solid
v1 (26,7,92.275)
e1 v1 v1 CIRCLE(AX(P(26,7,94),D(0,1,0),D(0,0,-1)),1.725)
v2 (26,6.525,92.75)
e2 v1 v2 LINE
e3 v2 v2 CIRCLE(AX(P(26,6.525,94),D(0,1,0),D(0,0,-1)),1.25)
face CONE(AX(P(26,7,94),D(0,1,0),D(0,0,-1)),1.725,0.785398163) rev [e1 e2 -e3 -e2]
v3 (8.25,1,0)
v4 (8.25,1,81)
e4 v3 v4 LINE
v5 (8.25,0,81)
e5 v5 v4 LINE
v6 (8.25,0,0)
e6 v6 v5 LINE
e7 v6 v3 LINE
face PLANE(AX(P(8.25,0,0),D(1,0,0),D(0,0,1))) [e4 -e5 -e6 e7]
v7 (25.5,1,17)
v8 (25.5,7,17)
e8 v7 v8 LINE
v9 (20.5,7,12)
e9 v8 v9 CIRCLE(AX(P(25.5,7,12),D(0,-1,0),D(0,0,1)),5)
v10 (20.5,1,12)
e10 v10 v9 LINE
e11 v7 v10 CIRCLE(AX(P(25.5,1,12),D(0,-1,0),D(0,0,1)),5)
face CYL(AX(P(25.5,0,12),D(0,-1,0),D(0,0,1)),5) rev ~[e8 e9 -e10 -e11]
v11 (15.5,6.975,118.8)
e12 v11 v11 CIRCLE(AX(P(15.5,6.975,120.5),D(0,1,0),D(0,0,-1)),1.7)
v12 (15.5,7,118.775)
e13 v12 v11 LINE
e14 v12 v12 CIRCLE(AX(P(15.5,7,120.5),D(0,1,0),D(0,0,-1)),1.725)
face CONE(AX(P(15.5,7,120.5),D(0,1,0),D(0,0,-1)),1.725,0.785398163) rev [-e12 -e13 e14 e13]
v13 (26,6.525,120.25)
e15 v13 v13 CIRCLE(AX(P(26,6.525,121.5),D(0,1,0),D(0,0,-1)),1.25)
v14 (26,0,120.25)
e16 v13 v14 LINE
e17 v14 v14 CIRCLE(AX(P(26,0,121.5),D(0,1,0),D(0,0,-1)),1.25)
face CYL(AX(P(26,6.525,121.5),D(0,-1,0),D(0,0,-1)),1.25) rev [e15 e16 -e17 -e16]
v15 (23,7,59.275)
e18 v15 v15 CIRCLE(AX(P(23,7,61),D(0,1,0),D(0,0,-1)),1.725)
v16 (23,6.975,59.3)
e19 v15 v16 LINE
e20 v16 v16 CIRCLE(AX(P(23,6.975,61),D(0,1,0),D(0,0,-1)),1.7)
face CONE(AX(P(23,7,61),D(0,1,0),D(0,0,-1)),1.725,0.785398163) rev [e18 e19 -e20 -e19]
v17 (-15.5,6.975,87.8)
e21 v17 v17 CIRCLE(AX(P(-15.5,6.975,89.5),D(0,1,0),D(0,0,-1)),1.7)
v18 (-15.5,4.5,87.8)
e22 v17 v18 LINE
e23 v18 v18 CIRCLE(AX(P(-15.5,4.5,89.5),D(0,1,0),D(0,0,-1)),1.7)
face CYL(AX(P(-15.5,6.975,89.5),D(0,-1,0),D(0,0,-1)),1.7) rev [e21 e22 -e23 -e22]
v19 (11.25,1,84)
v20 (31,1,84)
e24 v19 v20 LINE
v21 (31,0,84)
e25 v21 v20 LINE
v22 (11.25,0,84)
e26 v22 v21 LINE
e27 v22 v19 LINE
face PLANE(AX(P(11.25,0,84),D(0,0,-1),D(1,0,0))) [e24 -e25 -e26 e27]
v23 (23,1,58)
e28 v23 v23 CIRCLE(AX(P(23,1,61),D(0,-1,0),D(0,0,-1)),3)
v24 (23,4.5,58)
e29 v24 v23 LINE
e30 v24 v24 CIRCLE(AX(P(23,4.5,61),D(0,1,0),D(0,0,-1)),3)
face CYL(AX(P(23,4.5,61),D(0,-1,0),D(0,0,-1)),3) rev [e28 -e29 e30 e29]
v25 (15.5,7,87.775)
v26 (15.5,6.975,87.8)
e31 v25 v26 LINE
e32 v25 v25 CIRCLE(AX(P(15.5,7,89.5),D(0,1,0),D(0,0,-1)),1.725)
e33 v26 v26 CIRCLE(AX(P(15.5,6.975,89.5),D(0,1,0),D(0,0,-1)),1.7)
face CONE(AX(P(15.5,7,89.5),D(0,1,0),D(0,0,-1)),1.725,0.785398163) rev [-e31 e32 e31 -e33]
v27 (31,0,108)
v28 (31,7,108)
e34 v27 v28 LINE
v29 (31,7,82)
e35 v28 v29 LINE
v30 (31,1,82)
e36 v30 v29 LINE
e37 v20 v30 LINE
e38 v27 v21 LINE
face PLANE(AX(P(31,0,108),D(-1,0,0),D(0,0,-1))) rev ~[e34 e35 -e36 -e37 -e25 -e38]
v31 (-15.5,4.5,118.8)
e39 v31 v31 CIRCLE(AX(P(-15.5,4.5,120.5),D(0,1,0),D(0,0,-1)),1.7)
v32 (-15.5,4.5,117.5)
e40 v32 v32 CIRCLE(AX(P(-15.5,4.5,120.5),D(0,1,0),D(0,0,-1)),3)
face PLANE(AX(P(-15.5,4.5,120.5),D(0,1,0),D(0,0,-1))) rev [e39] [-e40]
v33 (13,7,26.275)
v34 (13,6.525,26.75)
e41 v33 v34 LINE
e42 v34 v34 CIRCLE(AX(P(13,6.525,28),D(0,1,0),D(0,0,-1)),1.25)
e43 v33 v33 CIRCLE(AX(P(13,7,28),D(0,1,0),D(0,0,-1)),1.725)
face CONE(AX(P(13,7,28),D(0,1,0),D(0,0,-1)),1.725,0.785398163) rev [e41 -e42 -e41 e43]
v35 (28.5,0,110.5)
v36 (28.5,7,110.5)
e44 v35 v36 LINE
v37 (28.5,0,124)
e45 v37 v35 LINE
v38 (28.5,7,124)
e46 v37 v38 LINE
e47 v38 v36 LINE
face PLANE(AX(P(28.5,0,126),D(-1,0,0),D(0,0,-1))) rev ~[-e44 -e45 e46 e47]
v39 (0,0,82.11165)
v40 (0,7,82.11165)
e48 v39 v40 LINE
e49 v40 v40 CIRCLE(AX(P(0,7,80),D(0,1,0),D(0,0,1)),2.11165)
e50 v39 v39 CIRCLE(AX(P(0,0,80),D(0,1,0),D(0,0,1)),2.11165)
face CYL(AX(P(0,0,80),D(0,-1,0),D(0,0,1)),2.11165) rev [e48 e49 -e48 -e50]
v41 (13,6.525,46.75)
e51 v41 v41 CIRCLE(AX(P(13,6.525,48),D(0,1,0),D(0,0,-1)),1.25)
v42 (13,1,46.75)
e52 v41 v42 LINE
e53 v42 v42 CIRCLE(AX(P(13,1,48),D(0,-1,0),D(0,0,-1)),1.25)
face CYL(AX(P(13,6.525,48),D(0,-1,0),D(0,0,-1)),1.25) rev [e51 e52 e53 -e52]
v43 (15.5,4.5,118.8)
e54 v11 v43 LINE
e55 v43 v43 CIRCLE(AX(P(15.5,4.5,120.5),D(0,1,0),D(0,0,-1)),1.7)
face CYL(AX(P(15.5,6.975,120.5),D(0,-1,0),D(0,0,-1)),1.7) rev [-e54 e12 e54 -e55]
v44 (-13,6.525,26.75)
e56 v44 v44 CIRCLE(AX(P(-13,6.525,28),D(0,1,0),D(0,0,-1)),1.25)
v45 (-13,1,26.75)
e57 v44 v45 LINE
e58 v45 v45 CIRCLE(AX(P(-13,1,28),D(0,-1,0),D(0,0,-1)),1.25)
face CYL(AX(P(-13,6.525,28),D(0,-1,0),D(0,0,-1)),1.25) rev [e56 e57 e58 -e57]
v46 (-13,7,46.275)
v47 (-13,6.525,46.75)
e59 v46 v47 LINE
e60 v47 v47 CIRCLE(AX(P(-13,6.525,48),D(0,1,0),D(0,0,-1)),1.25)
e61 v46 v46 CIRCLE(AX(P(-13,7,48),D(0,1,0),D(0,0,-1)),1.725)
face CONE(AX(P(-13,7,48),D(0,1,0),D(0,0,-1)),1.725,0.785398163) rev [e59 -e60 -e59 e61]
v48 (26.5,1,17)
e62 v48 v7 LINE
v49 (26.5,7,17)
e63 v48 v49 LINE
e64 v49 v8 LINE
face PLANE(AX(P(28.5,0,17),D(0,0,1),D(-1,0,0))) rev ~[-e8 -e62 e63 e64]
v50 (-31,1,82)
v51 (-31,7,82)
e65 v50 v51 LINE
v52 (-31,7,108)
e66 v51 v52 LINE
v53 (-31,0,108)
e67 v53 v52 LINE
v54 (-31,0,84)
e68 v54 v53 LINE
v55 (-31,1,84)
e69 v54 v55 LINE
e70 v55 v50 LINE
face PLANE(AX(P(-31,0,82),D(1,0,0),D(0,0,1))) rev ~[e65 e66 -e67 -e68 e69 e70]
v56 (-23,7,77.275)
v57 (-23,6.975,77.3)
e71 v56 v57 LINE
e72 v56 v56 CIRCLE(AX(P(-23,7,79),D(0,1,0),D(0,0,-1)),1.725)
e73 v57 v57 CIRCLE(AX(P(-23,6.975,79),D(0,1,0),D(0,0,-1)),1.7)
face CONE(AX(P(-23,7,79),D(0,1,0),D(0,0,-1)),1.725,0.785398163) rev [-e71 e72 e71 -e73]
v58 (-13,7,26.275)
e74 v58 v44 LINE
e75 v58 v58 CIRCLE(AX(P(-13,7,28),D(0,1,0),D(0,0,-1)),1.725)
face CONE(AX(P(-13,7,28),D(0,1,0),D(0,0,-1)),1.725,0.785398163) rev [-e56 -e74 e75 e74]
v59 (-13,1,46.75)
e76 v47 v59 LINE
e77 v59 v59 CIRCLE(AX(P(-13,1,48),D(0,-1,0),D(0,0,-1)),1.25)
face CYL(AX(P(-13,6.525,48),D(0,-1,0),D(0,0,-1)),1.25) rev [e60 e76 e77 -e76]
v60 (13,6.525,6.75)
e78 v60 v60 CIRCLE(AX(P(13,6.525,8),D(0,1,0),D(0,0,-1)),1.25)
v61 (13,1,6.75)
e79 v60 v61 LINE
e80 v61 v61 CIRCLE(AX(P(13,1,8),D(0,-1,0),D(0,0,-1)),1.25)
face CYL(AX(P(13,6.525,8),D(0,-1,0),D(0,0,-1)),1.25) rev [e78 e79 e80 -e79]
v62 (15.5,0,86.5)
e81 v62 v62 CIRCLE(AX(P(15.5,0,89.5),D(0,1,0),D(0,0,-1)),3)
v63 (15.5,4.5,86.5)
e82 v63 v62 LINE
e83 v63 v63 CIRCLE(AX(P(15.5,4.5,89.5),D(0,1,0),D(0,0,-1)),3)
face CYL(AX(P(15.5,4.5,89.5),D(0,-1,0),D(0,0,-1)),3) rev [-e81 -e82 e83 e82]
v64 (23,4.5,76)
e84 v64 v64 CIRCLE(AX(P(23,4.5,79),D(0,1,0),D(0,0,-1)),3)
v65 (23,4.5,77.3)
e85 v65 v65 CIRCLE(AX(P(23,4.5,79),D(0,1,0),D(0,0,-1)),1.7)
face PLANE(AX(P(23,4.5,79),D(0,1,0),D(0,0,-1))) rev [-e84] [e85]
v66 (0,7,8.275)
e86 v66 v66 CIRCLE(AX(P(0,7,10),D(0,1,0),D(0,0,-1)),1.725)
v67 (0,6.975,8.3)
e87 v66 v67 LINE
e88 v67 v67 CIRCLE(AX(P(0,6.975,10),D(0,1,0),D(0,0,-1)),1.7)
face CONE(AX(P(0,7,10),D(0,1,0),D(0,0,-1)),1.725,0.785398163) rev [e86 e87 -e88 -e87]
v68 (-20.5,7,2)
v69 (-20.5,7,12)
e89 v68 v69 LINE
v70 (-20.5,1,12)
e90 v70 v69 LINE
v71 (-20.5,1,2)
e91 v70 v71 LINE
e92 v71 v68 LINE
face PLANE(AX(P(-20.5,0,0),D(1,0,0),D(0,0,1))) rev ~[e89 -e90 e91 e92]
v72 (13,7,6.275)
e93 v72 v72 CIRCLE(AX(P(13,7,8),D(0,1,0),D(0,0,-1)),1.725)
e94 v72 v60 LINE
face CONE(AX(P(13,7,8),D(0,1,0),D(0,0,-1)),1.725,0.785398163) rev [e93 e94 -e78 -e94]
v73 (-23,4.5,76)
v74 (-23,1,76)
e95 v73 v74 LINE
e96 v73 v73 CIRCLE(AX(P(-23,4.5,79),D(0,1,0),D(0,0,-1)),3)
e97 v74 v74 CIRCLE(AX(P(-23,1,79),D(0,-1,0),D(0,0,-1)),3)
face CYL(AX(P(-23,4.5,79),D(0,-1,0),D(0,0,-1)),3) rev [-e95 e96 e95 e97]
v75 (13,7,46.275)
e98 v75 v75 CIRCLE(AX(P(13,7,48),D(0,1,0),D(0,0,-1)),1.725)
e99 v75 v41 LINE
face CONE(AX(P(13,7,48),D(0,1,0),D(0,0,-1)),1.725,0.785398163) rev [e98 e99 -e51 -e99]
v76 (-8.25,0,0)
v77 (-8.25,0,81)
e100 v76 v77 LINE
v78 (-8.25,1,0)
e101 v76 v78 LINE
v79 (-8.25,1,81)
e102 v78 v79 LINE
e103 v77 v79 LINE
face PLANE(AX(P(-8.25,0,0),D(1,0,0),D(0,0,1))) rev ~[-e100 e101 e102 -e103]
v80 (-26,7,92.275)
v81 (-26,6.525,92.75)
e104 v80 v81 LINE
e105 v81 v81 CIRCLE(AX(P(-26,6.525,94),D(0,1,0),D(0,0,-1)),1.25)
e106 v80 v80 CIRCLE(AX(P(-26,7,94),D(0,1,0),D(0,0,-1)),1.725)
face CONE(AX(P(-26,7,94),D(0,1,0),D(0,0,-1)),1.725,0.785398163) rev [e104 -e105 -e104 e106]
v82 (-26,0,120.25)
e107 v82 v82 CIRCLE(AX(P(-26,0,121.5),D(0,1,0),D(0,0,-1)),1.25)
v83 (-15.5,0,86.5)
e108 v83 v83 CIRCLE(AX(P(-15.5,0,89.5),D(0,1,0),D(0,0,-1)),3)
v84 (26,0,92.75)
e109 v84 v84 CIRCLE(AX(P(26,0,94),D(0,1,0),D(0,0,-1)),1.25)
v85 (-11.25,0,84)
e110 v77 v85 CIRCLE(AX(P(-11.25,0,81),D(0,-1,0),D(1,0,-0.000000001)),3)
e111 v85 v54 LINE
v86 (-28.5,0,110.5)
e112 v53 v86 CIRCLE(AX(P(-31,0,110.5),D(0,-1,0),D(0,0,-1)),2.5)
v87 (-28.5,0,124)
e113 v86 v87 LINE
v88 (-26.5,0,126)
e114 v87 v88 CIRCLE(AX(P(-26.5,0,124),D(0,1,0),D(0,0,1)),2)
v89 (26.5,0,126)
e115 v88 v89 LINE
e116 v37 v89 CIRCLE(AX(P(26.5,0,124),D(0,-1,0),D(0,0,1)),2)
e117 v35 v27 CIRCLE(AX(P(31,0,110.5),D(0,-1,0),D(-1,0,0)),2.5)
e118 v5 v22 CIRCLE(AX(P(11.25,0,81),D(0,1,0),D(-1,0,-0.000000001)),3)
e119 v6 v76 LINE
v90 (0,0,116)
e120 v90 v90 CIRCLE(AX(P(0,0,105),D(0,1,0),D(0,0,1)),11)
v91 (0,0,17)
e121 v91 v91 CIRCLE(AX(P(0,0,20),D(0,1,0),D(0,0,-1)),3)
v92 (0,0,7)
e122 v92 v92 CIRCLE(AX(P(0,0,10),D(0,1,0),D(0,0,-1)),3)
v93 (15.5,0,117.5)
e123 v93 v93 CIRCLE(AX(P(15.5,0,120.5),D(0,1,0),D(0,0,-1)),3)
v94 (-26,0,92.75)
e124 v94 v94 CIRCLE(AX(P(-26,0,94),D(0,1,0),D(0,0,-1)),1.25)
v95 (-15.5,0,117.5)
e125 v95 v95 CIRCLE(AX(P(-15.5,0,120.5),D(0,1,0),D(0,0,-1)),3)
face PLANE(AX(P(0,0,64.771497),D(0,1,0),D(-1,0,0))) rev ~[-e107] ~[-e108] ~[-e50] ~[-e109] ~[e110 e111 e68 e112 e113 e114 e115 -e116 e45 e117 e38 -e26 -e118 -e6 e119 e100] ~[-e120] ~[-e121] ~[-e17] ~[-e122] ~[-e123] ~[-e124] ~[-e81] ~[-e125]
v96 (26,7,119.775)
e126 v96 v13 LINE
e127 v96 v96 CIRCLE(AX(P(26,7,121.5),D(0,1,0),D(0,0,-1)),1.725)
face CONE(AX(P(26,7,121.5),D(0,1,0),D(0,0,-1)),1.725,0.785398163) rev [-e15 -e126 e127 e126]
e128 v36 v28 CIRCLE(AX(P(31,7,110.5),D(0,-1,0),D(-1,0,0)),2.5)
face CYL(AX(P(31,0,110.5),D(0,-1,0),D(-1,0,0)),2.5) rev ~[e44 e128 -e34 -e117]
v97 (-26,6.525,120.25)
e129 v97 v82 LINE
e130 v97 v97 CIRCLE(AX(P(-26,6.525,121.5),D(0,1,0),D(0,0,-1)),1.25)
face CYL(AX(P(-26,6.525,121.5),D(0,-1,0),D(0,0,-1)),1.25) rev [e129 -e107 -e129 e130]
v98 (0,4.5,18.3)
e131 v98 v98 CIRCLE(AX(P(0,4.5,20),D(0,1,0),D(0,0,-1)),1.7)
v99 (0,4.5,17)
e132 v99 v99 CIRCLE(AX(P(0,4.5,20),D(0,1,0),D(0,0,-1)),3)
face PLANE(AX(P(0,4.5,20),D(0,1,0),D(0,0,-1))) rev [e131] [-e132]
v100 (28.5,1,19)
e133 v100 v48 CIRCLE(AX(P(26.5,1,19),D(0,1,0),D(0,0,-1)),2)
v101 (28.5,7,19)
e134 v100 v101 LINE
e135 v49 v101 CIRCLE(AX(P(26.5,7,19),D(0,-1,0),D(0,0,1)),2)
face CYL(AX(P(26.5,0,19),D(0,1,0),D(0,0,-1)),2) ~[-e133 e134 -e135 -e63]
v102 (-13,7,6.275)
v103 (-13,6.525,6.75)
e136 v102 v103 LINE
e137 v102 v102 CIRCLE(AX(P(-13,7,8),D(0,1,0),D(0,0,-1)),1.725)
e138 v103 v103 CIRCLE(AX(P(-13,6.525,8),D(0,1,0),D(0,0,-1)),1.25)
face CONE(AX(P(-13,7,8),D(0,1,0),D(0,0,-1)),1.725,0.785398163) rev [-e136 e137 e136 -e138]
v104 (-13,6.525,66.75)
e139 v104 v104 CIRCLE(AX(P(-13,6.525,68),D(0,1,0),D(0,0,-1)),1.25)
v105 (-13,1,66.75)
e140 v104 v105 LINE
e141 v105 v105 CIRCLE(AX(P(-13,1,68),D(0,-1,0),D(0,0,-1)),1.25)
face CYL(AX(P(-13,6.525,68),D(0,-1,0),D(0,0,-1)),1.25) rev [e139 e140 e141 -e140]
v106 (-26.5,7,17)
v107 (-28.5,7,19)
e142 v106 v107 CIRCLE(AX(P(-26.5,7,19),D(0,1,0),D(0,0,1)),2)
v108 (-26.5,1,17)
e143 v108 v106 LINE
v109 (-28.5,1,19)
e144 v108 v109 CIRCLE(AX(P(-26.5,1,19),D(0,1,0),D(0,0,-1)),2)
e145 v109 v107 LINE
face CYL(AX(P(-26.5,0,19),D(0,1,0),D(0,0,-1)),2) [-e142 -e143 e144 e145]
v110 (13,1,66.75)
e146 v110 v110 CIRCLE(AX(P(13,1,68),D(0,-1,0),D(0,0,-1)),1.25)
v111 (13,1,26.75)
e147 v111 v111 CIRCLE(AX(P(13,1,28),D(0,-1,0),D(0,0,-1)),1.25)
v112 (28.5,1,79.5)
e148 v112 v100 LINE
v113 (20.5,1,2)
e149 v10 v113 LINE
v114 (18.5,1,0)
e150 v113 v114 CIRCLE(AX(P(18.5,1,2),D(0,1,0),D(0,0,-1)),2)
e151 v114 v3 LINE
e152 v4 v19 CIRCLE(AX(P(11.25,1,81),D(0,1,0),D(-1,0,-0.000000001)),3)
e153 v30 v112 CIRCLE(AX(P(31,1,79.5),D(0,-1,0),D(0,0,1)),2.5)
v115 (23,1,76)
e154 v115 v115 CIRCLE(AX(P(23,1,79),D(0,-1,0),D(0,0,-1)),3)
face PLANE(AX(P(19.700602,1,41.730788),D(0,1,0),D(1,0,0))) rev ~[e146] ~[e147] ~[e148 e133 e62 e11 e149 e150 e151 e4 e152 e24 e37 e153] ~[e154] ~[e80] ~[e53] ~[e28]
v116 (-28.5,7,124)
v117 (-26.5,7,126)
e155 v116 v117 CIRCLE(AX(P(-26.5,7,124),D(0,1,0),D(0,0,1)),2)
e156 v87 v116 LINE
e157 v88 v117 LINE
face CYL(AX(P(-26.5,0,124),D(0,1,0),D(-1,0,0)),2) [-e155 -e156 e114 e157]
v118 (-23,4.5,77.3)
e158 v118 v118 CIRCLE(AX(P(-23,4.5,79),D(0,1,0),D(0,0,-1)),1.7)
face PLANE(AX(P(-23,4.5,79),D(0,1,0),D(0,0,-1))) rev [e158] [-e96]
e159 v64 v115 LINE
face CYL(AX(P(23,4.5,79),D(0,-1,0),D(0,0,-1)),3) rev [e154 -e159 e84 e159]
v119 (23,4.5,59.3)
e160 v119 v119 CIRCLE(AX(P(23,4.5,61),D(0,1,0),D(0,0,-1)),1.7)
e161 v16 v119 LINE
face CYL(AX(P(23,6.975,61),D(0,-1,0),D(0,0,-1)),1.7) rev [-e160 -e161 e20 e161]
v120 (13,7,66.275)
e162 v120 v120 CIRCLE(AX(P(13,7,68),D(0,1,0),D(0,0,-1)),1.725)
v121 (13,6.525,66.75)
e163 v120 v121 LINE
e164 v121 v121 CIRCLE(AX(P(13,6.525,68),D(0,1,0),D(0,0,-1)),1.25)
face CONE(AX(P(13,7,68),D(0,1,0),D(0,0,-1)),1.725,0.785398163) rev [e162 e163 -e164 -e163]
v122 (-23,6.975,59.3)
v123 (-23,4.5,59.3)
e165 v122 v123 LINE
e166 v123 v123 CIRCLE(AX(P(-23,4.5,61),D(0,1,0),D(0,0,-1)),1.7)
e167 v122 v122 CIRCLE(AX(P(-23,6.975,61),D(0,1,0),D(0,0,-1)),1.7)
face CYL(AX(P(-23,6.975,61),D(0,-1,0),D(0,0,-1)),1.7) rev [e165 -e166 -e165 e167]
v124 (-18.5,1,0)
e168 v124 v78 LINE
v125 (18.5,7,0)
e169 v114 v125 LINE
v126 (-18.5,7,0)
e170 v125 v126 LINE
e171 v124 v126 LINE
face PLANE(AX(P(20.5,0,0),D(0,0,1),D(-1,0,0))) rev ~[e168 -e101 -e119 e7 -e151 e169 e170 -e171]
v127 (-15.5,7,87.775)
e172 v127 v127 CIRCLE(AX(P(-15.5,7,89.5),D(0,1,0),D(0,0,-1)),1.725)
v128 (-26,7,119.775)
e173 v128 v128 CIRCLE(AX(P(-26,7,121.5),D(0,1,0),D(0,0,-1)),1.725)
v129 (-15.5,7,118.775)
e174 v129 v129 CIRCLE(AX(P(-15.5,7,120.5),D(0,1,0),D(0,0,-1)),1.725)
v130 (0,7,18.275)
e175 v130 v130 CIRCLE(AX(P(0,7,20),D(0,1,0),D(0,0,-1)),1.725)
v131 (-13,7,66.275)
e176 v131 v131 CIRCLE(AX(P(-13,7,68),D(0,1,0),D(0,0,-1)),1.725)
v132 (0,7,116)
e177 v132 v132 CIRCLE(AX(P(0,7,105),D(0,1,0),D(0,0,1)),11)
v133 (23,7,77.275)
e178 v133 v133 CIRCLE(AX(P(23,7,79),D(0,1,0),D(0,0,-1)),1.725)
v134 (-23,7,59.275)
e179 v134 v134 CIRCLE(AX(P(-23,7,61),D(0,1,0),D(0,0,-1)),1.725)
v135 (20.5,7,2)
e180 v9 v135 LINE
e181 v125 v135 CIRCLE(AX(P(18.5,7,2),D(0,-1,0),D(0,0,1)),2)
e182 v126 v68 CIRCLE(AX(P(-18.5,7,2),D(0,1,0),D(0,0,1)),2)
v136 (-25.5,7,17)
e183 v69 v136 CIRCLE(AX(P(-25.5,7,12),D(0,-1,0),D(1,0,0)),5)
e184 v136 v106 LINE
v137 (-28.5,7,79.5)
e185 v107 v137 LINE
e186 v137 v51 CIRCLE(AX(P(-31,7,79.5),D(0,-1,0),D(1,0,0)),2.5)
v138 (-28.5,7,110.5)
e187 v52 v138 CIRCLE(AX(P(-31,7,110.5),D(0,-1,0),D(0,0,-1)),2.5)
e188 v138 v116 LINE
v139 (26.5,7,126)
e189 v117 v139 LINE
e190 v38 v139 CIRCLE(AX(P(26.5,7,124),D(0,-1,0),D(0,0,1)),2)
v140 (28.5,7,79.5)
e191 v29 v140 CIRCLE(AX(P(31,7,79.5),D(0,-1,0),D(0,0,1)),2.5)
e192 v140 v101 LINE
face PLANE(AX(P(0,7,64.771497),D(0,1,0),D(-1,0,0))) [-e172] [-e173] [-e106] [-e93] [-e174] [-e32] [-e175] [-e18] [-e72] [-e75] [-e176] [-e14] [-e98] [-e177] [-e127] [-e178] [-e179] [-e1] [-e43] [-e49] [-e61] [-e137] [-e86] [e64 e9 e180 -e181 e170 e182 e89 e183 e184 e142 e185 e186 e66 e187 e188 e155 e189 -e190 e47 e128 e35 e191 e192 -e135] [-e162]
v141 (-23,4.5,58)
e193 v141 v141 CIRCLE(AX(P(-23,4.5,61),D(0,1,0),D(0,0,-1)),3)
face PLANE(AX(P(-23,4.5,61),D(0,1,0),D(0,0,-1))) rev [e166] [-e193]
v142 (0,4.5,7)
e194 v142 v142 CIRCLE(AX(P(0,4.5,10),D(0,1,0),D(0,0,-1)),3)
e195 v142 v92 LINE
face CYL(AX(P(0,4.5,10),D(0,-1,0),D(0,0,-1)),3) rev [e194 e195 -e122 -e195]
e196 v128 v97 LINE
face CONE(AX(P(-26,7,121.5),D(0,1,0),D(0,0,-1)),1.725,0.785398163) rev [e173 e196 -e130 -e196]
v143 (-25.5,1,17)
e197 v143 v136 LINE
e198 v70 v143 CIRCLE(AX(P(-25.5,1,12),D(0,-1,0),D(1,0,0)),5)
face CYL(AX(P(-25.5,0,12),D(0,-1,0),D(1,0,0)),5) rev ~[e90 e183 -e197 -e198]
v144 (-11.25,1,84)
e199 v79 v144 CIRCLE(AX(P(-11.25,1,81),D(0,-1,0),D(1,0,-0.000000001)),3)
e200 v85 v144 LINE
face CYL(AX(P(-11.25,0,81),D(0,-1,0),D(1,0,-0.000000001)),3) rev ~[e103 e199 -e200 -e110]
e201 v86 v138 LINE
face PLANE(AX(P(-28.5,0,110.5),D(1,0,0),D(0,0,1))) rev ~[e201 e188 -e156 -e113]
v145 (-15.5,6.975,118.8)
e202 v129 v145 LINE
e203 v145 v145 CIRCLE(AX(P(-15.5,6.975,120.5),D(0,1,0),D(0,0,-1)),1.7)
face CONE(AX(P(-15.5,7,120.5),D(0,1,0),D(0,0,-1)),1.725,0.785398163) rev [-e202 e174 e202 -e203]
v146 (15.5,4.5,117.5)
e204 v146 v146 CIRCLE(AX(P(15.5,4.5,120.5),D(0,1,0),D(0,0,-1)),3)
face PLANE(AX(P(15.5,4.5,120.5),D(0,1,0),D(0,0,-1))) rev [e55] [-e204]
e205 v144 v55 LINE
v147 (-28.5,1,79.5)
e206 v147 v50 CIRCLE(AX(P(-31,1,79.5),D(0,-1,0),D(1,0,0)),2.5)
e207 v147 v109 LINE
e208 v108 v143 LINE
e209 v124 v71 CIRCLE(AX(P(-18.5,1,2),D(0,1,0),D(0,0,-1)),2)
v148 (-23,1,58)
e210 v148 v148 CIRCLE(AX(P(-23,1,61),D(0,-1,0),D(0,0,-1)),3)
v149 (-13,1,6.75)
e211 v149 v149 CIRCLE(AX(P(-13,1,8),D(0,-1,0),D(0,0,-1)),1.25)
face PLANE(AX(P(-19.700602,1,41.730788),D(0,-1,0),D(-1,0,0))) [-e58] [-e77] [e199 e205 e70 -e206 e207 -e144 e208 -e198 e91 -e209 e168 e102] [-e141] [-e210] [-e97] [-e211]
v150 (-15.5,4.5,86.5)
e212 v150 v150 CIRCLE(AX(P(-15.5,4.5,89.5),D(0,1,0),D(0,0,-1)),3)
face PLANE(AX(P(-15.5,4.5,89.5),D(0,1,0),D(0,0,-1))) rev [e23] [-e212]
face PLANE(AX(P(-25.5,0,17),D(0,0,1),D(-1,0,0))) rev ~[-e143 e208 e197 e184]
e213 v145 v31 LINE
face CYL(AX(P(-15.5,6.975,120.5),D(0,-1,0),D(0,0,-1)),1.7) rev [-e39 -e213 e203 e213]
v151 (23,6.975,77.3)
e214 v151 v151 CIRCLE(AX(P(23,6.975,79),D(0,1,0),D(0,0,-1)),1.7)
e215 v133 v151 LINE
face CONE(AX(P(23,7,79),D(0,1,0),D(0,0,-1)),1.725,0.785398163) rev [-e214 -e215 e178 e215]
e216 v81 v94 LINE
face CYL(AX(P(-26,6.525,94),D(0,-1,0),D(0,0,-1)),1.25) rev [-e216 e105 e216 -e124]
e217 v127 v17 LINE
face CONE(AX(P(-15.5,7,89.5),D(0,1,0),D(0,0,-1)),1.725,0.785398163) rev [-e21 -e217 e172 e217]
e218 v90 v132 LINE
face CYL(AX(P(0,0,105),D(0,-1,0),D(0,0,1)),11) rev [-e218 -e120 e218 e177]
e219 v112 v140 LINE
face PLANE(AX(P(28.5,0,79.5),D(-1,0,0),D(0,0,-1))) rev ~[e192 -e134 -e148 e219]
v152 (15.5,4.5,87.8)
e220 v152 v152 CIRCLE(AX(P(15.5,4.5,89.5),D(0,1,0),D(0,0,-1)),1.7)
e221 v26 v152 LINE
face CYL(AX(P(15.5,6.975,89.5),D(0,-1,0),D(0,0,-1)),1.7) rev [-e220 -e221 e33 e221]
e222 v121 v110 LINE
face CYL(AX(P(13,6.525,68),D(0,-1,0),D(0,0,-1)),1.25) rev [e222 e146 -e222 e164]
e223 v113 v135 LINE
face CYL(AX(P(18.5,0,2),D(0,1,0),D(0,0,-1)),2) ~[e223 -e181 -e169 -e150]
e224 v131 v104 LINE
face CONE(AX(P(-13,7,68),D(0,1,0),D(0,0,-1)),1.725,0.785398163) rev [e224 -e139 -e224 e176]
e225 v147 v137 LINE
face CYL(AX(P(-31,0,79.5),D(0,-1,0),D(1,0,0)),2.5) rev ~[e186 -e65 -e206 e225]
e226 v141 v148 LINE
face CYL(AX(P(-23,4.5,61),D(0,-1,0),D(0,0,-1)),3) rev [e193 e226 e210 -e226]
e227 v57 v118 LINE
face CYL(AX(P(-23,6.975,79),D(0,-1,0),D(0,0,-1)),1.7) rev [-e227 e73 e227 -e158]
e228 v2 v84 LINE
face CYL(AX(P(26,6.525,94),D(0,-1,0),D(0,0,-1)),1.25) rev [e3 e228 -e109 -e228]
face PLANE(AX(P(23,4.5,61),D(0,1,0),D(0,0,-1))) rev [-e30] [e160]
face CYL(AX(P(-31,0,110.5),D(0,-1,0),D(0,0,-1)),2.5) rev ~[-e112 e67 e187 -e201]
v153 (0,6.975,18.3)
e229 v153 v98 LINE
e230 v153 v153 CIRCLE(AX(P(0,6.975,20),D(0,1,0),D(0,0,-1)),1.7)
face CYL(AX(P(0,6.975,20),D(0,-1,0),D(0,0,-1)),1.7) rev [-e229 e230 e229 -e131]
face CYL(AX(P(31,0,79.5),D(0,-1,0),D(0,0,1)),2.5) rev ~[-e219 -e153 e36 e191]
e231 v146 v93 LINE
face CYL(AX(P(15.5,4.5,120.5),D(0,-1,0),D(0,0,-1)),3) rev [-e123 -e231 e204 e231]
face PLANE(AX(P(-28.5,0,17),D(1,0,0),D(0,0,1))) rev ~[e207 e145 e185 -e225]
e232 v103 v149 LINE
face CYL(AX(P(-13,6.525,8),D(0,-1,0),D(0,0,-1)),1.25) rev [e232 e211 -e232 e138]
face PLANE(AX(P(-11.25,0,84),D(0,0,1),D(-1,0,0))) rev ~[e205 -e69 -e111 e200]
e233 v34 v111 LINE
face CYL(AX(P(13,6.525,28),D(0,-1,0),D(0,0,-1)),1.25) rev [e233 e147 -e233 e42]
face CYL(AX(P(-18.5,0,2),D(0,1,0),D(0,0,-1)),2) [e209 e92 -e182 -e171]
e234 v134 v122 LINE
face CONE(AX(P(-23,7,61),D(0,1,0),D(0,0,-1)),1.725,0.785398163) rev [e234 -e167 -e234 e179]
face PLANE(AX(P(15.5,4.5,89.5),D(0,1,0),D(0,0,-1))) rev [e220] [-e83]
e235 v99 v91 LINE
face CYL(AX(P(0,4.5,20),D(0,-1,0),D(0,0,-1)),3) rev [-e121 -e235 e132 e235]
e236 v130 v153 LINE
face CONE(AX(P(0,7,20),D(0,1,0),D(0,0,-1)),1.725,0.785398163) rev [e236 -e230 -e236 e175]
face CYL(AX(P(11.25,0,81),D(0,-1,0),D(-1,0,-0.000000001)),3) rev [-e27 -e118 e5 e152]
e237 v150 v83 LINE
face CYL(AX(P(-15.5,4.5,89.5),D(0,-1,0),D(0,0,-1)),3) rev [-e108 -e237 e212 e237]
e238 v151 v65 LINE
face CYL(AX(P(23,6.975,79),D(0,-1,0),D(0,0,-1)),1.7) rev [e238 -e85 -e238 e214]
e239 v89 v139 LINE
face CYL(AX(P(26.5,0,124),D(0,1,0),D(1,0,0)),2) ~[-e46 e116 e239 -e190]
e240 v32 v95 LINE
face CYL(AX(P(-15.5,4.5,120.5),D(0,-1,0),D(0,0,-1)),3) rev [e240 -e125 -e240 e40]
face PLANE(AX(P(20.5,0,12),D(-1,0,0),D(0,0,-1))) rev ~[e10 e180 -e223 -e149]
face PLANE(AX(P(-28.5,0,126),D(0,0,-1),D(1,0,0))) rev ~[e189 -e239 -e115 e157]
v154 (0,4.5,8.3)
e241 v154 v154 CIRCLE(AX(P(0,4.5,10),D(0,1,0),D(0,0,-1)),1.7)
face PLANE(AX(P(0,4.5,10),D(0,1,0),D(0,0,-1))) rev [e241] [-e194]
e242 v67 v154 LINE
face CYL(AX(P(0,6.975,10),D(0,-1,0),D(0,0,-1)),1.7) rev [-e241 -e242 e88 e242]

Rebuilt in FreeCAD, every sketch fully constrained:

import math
import FreeCAD as App
import Part
import Sketcher
Q = App.Units.Quantity


def edges_at(feature, points):
    """Names of the edges that pass closest to the given points."""
    edges = feature.Shape.Edges
    near = lambda p: min(range(len(edges)), key=lambda i: edges[i].distToShape(Part.Vertex(*p))[0])
    return sorted({f"Edge{near(p) + 1}" for p in points})


def add_polygon(sketch, points):
    """Adds a closed chain of lines whose ends are joined by coincident constraints."""
    first, n = sketch.GeometryCount, len(points)
    for a, b in zip(points, points[1:] + points[:1]):
        sketch.addGeometry(Part.LineSegment(App.Vector(*a, 0), App.Vector(*b, 0)), False)
    for i in range(n):
        sketch.addConstraint(Sketcher.Constraint("Coincident", first + i, 2, first + (i + 1) % n, 1))

doc = App.newDocument("Part")
params = doc.addObject("Spreadsheet::Sheet", "Params")
for row, (alias, value) in enumerate([
    ("sketch1_diameter", "22 mm"),
    ("sketch1_radius", "5 mm"),
    ("sketch1_radius2", "2.5 mm"),
    ("sketch1_width", "41 mm"),
    ("sketch1_width2", "3 mm"),
    ("pad1_length", "7 mm"),
    ("fillet_radius", "2 mm"),
    ("sketch2_width", "7 mm"),
    ("sketch2_height", "1.25 mm"),
    ("groove_angle", "360 deg"),
    ("linearpattern_pitch", "27.5 mm"),
    ("linearpattern2_pitch", "58.82389 mm"),
    ("linearpattern3_pitch", "66.206118 mm"),
    ("linearpattern4_pitch", "83.206069 mm"),
    ("linearpattern5_pitch", "101.3077 mm"),
    ("linearpattern6_pitch", "120.013541 mm"),
    ("linearpattern7_pitch", "114.242068 mm"),
    ("linearpattern8_pitch", "94.399417 mm"),
    ("linearpattern9_pitch", "74.640807 mm"),
    ("linearpattern10_pitch", "55.056789 mm"),
    ("linearpattern11_pitch", "52 mm"),
    ("sketch3_width", "7 mm"),
    ("sketch3_height", "3 mm"),
    ("sketch3_width2", "4.5 mm"),
    ("sketch3_height2", "1.3 mm"),
    ("groove2_angle", "360 deg"),
    ("linearpattern12_pitch", "31 mm"),
    ("linearpattern13_pitch", "43.84062 mm"),
    ("linearpattern14_pitch", "31 mm"),
    ("linearpattern15_pitch", "42.172266 mm"),
    ("linearpattern16_pitch", "56.608303 mm"),
    ("linearpattern17_pitch", "70.869599 mm"),
    ("linearpattern18_pitch", "59.970826 mm"),
    ("linearpattern19_pitch", "101.688249 mm"),
    ("linearpattern20_pitch", "111.581809 mm"),
    ("sketch4_radius", "3 mm"),
    ("sketch4_height", "81 mm"),
    ("sketch4_width", "22.75 mm"),
    ("pocket1_length", "1 mm"),
], start=1):
    params.set(f"A{row}", alias)
    params.set(f"B{row}", "=" + value)
    params.setAlias(f"B{row}", alias)

body = doc.addObject("PartDesign::Body", "Body")

# Sketch on XZ plane
sketch1 = body.newObject("Sketcher::SketchObject", "Sketch")
sketch1.AttachmentSupport = (doc.getObject("XZ_Plane"), [""])
sketch1.MapMode = "FlatFace"
sketch1.addGeometry(Part.LineSegment(App.Vector(20.5, 0, 0), App.Vector(-20.5, 0, 0)), False)
sketch1.addGeometry(Part.LineSegment(App.Vector(-20.5, 0, 0), App.Vector(-20.5, 12, 0)), False)
sketch1.addGeometry(Part.ArcOfCircle(Part.Circle(App.Vector(-25.5, 12, 0), App.Vector(0, 0, 1), 5), math.radians(0), math.radians(90)), False)
sketch1.addGeometry(Part.LineSegment(App.Vector(-25.5, 17, 0), App.Vector(-28.5, 17, 0)), False)
sketch1.addGeometry(Part.LineSegment(App.Vector(-28.5, 17, 0), App.Vector(-28.5, 79.5, 0)), False)
sketch1.addGeometry(Part.ArcOfCircle(Part.Circle(App.Vector(-31, 79.5, 0), App.Vector(0, 0, 1), 2.5), math.radians(0), math.radians(90)), False)
sketch1.addGeometry(Part.LineSegment(App.Vector(-31, 82, 0), App.Vector(-31, 108, 0)), False)
sketch1.addGeometry(Part.ArcOfCircle(Part.Circle(App.Vector(-31, 110.5, 0), App.Vector(0, 0, 1), 2.5), math.radians(-90), math.radians(0)), False)
sketch1.addGeometry(Part.LineSegment(App.Vector(-28.5, 110.5, 0), App.Vector(-28.5, 126, 0)), False)
sketch1.addGeometry(Part.LineSegment(App.Vector(-28.5, 126, 0), App.Vector(28.5, 126, 0)), False)
sketch1.addGeometry(Part.LineSegment(App.Vector(28.5, 126, 0), App.Vector(28.5, 110.5, 0)), False)
sketch1.addGeometry(Part.ArcOfCircle(Part.Circle(App.Vector(31, 110.5, 0), App.Vector(0, 0, 1), 2.5), math.radians(180), math.radians(270)), False)
sketch1.addGeometry(Part.LineSegment(App.Vector(31, 108, 0), App.Vector(31, 82, 0)), False)
sketch1.addGeometry(Part.ArcOfCircle(Part.Circle(App.Vector(31, 79.5, 0), App.Vector(0, 0, 1), 2.5), math.radians(90), math.radians(180)), False)
sketch1.addGeometry(Part.LineSegment(App.Vector(28.5, 79.5, 0), App.Vector(28.5, 17, 0)), False)
sketch1.addGeometry(Part.LineSegment(App.Vector(28.5, 17, 0), App.Vector(25.5, 17, 0)), False)
sketch1.addGeometry(Part.ArcOfCircle(Part.Circle(App.Vector(25.5, 12, 0), App.Vector(0, 0, 1), 5), math.radians(90), math.radians(180)), False)
sketch1.addGeometry(Part.LineSegment(App.Vector(20.5, 12, 0), App.Vector(20.5, 0, 0)), False)
sketch1.addGeometry(Part.Circle(App.Vector(0, 80, 0), App.Vector(0, 0, 1), 2.11165), False)
sketch1.addGeometry(Part.Circle(App.Vector(0, 105, 0), App.Vector(0, 0, 1), 11), False)
sketch1.addConstraint(Sketcher.Constraint("Coincident", 0, 2, 1, 1))
sketch1.addConstraint(Sketcher.Constraint("Tangent", 1, 2, 2, 1))
sketch1.addConstraint(Sketcher.Constraint("Tangent", 2, 2, 3, 1))
sketch1.addConstraint(Sketcher.Constraint("Coincident", 3, 2, 4, 1))
sketch1.addConstraint(Sketcher.Constraint("Tangent", 4, 2, 5, 1))
sketch1.addConstraint(Sketcher.Constraint("Coincident", 5, 2, 6, 1))
sketch1.addConstraint(Sketcher.Constraint("Coincident", 6, 2, 7, 1))
sketch1.addConstraint(Sketcher.Constraint("Tangent", 7, 2, 8, 1))
sketch1.addConstraint(Sketcher.Constraint("Coincident", 8, 2, 9, 1))
sketch1.addConstraint(Sketcher.Constraint("Coincident", 9, 2, 10, 1))
sketch1.addConstraint(Sketcher.Constraint("Tangent", 10, 2, 11, 1))
sketch1.addConstraint(Sketcher.Constraint("Coincident", 11, 2, 12, 1))
sketch1.addConstraint(Sketcher.Constraint("Coincident", 12, 2, 13, 1))
sketch1.addConstraint(Sketcher.Constraint("Tangent", 13, 2, 14, 1))
sketch1.addConstraint(Sketcher.Constraint("Coincident", 14, 2, 15, 1))
sketch1.addConstraint(Sketcher.Constraint("Tangent", 15, 2, 16, 1))
sketch1.addConstraint(Sketcher.Constraint("Tangent", 16, 2, 17, 1))
sketch1.addConstraint(Sketcher.Constraint("Coincident", 17, 2, 0, 1))
sketch1.addConstraint(Sketcher.Constraint("Horizontal", 0))
sketch1.addConstraint(Sketcher.Constraint("Vertical", 1))
sketch1.addConstraint(Sketcher.Constraint("Horizontal", 3))
sketch1.addConstraint(Sketcher.Constraint("Vertical", 4))
sketch1.addConstraint(Sketcher.Constraint("Vertical", 6))
sketch1.addConstraint(Sketcher.Constraint("Vertical", 8))
sketch1.addConstraint(Sketcher.Constraint("Horizontal", 9))
sketch1.addConstraint(Sketcher.Constraint("Vertical", 10))
sketch1.addConstraint(Sketcher.Constraint("Vertical", 12))
sketch1.addConstraint(Sketcher.Constraint("Vertical", 14))
sketch1.addConstraint(Sketcher.Constraint("Horizontal", 15))
sketch1.addConstraint(Sketcher.Constraint("Vertical", 17))
sketch1.addConstraint(Sketcher.Constraint("Equal", 5, 7))
sketch1.addConstraint(Sketcher.Constraint("Equal", 7, 11))
sketch1.addConstraint(Sketcher.Constraint("Equal", 11, 13))
sketch1.addConstraint(Sketcher.Constraint("Equal", 2, 16))
sketch1.addConstraint(Sketcher.Constraint("Symmetric", 0, 2, 17, 2, -1, 1))
sketch1.addConstraint(Sketcher.Constraint("Symmetric", 7, 3, 11, 3, -2))
sketch1.addConstraint(Sketcher.Constraint("Symmetric", 5, 3, 13, 3, -2))
sketch1.addConstraint(Sketcher.Constraint("PointOnObject", 18, 3, -2))
sketch1.addConstraint(Sketcher.Constraint("PointOnObject", 19, 3, -2))
sketch1.addConstraint(Sketcher.Constraint("Horizontal", 2, 3, 16, 3))
sketch1.addConstraint(Sketcher.Constraint("Vertical", 5, 3, 7, 3))
sketch1.addConstraint(Sketcher.Constraint("Vertical", 7, 3, 5, 2))
sketch1.addConstraint(Sketcher.Constraint("Vertical", 13, 3, 11, 2))
sketch1.addConstraint(Sketcher.Constraint("Diameter", 19, 22.0))
sketch1.addConstraint(Sketcher.Constraint("Radius", 2, 5.0))
sketch1.addConstraint(Sketcher.Constraint("Radius", 5, 2.5))
sketch1.addConstraint(Sketcher.Constraint("DistanceX", 0, 2, 0, 1, 41.0))
sketch1.addConstraint(Sketcher.Constraint("DistanceX", 3, 2, 3, 1, 3.0))
sketch1.addConstraint(Sketcher.Constraint("DistanceY", 1, 1, 1, 2, 12.0))
sketch1.addConstraint(Sketcher.Constraint("DistanceY", 6, 1, 6, 2, 26.0))
sketch1.addConstraint(Sketcher.Constraint("DistanceY", 4, 1, 4, 2, 62.5))
sketch1.addConstraint(Sketcher.Constraint("DistanceY", 8, 1, 8, 2, 15.5))
sketch1.addConstraint(Sketcher.Constraint("DistanceY", -1, 1, 18, 3, 80.0))
sketch1.addConstraint(Sketcher.Constraint("DistanceY", -1, 1, 19, 3, 105.0))
sketch1.addConstraint(Sketcher.Constraint("Diameter", 18, 4.223301))
sketch1.setExpression("Constraints[43]", "Params.sketch1_diameter")
sketch1.setExpression("Constraints[44]", "Params.sketch1_radius")
sketch1.setExpression("Constraints[45]", "Params.sketch1_radius2")
sketch1.setExpression("Constraints[46]", "Params.sketch1_width")
sketch1.setExpression("Constraints[47]", "Params.sketch1_width2")
pad1 = body.newObject("PartDesign::Pad", "Pad")
pad1.Profile = sketch1
pad1.setExpression("Length", "Params.pad1_length")
pad1.Reversed = True
doc.recompute()

fillet = body.newObject("PartDesign::Fillet", "Fillet")
fillet.Base = (pad1, edges_at(pad1, [
    (28.5, 3.5, 126),
    (-28.5, 3.5, 126),
    (-28.5, 3.5, 17),
    (-20.5, 3.5, 0),
    (20.5, 3.5, 0),
    (28.5, 3.5, 17),
]))
fillet.setExpression("Radius", "Params.fillet_radius")

# Sketch on YZ plane
sketch2 = body.newObject("Sketcher::SketchObject", "Sketch001")
sketch2.AttachmentSupport = (doc.getObject("YZ_Plane"), [""])
sketch2.MapMode = "FlatFace"
sketch2.AttachmentOffset = App.Placement(App.Vector(0, 0, 26), App.Rotation())
add_polygon(sketch2, [(7, 121.5), (0, 121.5), (0, 120.25), (6.525, 120.25), (7, 119.775)])  # lines 0-4
sketch2.addGeometry(Part.LineSegment(App.Vector(0, 121.5, 0), App.Vector(7, 121.5, 0)), True)  # axis
sketch2.addConstraint(Sketcher.Constraint("Horizontal", 0))
sketch2.addConstraint(Sketcher.Constraint("Vertical", 1))
sketch2.addConstraint(Sketcher.Constraint("Horizontal", 2))
sketch2.addConstraint(Sketcher.Constraint("Vertical", 4))
sketch2.addConstraint(Sketcher.Constraint("Horizontal", 5))
sketch2.addConstraint(Sketcher.Constraint("Coincident", 5, 1, 0, 2))
sketch2.addConstraint(Sketcher.Constraint("PointOnObject", 0, 2, -2))
sketch2.addConstraint(Sketcher.Constraint("Vertical", 3, 2, 5, 2))
sketch2.addConstraint(Sketcher.Constraint("DistanceX", 0, 2, 0, 1, 7.0))
sketch2.addConstraint(Sketcher.Constraint("Angle", 3, Q("-45 deg")))
sketch2.addConstraint(Sketcher.Constraint("DistanceY", 1, 2, 1, 1, 1.25))
sketch2.addConstraint(Sketcher.Constraint("DistanceY", -1, 1, 0, 2, 121.5))
sketch2.addConstraint(Sketcher.Constraint("DistanceX", 2, 1, 2, 2, 6.525))
sketch2.setExpression("Constraints[13]", "Params.sketch2_width")
sketch2.setExpression("Constraints[15]", "Params.sketch2_height")
groove = body.newObject("PartDesign::Groove", "Groove")
groove.Profile = sketch2
groove.ReferenceAxis = (sketch2, ["Axis0"])
groove.setExpression("Angle", "Params.groove_angle")
doc.recompute()

linearpattern = body.newObject("PartDesign::LinearPattern", "LinearPattern")
linearpattern.Originals = [groove]
linearpattern.Direction = (doc.getObject("Z_Axis"), [""])
linearpattern.Mode = "offset"
linearpattern.setExpression("Offset", "Params.linearpattern_pitch")
linearpattern.Occurrences = 2
linearpattern.Reversed = True
body.Tip = linearpattern
doc.recompute()

datumline = body.newObject("PartDesign::Line", "DatumLine")
datumline.Placement = App.Placement(App.Vector(0, 0, 0), App.Rotation(App.Vector(0, 0, 1), App.Vector(-0.883994586, 0, -0.467497137)))
linearpattern2 = body.newObject("PartDesign::LinearPattern", "LinearPattern001")
linearpattern2.Originals = [groove]
linearpattern2.Direction = (datumline, [""])
linearpattern2.Mode = "offset"
linearpattern2.setExpression("Offset", "Params.linearpattern2_pitch")
linearpattern2.Occurrences = 2
body.Tip = linearpattern2
doc.recompute()

datumline2 = body.newObject("PartDesign::Line", "DatumLine001")
datumline2.Placement = App.Placement(App.Vector(0, 0, 0), App.Rotation(App.Vector(0, 0, 1), App.Vector(-0.589069431, 0, -0.808082425)))
linearpattern3 = body.newObject("PartDesign::LinearPattern", "LinearPattern002")
linearpattern3.Originals = [groove]
linearpattern3.Direction = (datumline2, [""])
linearpattern3.Mode = "offset"
linearpattern3.setExpression("Offset", "Params.linearpattern3_pitch")
linearpattern3.Occurrences = 2
body.Tip = linearpattern3
doc.recompute()

datumline3 = body.newObject("PartDesign::Line", "DatumLine002")
datumline3.Placement = App.Placement(App.Vector(0, 0, 0), App.Rotation(App.Vector(0, 0, 1), App.Vector(-0.468715807, 0, -0.883349021)))
linearpattern4 = body.newObject("PartDesign::LinearPattern", "LinearPattern003")
linearpattern4.Originals = [groove]
linearpattern4.Direction = (datumline3, [""])
linearpattern4.Mode = "offset"
linearpattern4.setExpression("Offset", "Params.linearpattern4_pitch")
linearpattern4.Occurrences = 2
body.Tip = linearpattern4
doc.recompute()

datumline4 = body.newObject("PartDesign::Line", "DatumLine003")
datumline4.Placement = App.Placement(App.Vector(0, 0, 0), App.Rotation(App.Vector(0, 0, 1), App.Vector(-0.384965804, 0, -0.922930837)))
linearpattern5 = body.newObject("PartDesign::LinearPattern", "LinearPattern004")
linearpattern5.Originals = [groove]
linearpattern5.Direction = (datumline4, [""])
linearpattern5.Mode = "offset"
linearpattern5.setExpression("Offset", "Params.linearpattern5_pitch")
linearpattern5.Occurrences = 2
body.Tip = linearpattern5
doc.recompute()

datumline5 = body.newObject("PartDesign::Line", "DatumLine004")
datumline5.Placement = App.Placement(App.Vector(0, 0, 0), App.Rotation(App.Vector(0, 0, 1), App.Vector(-0.324963331, 0, -0.945726617)))
linearpattern6 = body.newObject("PartDesign::LinearPattern", "LinearPattern005")
linearpattern6.Originals = [groove]
linearpattern6.Direction = (datumline5, [""])
linearpattern6.Mode = "offset"
linearpattern6.setExpression("Offset", "Params.linearpattern6_pitch")
linearpattern6.Occurrences = 2
body.Tip = linearpattern6
doc.recompute()

datumline6 = body.newObject("PartDesign::Line", "DatumLine005")
datumline6.Placement = App.Placement(App.Vector(0, 0, 0), App.Rotation(App.Vector(0, 0, 1), App.Vector(-0.113793459, 0, -0.993504428)))
linearpattern7 = body.newObject("PartDesign::LinearPattern", "LinearPattern006")
linearpattern7.Originals = [groove]
linearpattern7.Direction = (datumline6, [""])
linearpattern7.Mode = "offset"
linearpattern7.setExpression("Offset", "Params.linearpattern7_pitch")
linearpattern7.Occurrences = 2
body.Tip = linearpattern7
doc.recompute()

datumline7 = body.newObject("PartDesign::Line", "DatumLine006")
datumline7.Placement = App.Placement(App.Vector(0, 0, 0), App.Rotation(App.Vector(0, 0, 1), App.Vector(-0.137712714, 0, -0.990472215)))
linearpattern8 = body.newObject("PartDesign::LinearPattern", "LinearPattern007")
linearpattern8.Originals = [groove]
linearpattern8.Direction = (datumline7, [""])
linearpattern8.Mode = "offset"
linearpattern8.setExpression("Offset", "Params.linearpattern8_pitch")
linearpattern8.Occurrences = 2
body.Tip = linearpattern8
doc.recompute()

datumline8 = body.newObject("PartDesign::Line", "DatumLine007")
datumline8.Placement = App.Placement(App.Vector(0, 0, 0), App.Rotation(App.Vector(0, 0, 1), App.Vector(-0.174167464, 0, -0.984716048)))
linearpattern9 = body.newObject("PartDesign::LinearPattern", "LinearPattern008")
linearpattern9.Originals = [groove]
linearpattern9.Direction = (datumline8, [""])
linearpattern9.Mode = "offset"
linearpattern9.setExpression("Offset", "Params.linearpattern9_pitch")
linearpattern9.Occurrences = 2
body.Tip = linearpattern9
doc.recompute()

datumline9 = body.newObject("PartDesign::Line", "DatumLine008")
datumline9.Placement = App.Placement(App.Vector(0, 0, 0), App.Rotation(App.Vector(0, 0, 1), App.Vector(-0.236119837, 0, -0.971723944)))
linearpattern10 = body.newObject("PartDesign::LinearPattern", "LinearPattern009")
linearpattern10.Originals = [groove]
linearpattern10.Direction = (datumline9, [""])
linearpattern10.Mode = "offset"
linearpattern10.setExpression("Offset", "Params.linearpattern10_pitch")
linearpattern10.Occurrences = 2
body.Tip = linearpattern10
doc.recompute()

linearpattern11 = body.newObject("PartDesign::LinearPattern", "LinearPattern010")
linearpattern11.Originals = [groove]
linearpattern11.Direction = (doc.getObject("X_Axis"), [""])
linearpattern11.Mode = "offset"
linearpattern11.setExpression("Offset", "Params.linearpattern11_pitch")
linearpattern11.Occurrences = 2
linearpattern11.Reversed = True
body.Tip = linearpattern11

# Sketch on YZ plane
sketch3 = body.newObject("Sketcher::SketchObject", "Sketch002")
sketch3.AttachmentSupport = (doc.getObject("YZ_Plane"), [""])
sketch3.MapMode = "FlatFace"
sketch3.AttachmentOffset = App.Placement(App.Vector(0, 0, -15.5), App.Rotation())
add_polygon(sketch3, [(7, 120.5), (0, 120.5), (0, 117.5), (4.5, 117.5), (4.5, 118.8), (6.975, 118.8), (7, 118.775)])  # lines 0-6
sketch3.addGeometry(Part.LineSegment(App.Vector(0, 120.5, 0), App.Vector(7, 120.5, 0)), True)  # axis
sketch3.addConstraint(Sketcher.Constraint("Horizontal", 0))
sketch3.addConstraint(Sketcher.Constraint("Vertical", 1))
sketch3.addConstraint(Sketcher.Constraint("Horizontal", 2))
sketch3.addConstraint(Sketcher.Constraint("Vertical", 3))
sketch3.addConstraint(Sketcher.Constraint("Horizontal", 4))
sketch3.addConstraint(Sketcher.Constraint("Vertical", 6))
sketch3.addConstraint(Sketcher.Constraint("Horizontal", 7))
sketch3.addConstraint(Sketcher.Constraint("Coincident", 7, 1, 0, 2))
sketch3.addConstraint(Sketcher.Constraint("PointOnObject", 0, 2, -2))
sketch3.addConstraint(Sketcher.Constraint("Vertical", 5, 2, 7, 2))
sketch3.addConstraint(Sketcher.Constraint("DistanceX", 0, 2, 0, 1, 7.0))
sketch3.addConstraint(Sketcher.Constraint("DistanceY", 1, 2, 1, 1, 3.0))
sketch3.addConstraint(Sketcher.Constraint("Angle", 5, Q("-45 deg")))
sketch3.addConstraint(Sketcher.Constraint("DistanceX", 2, 1, 2, 2, 4.5))
sketch3.addConstraint(Sketcher.Constraint("DistanceY", 3, 1, 3, 2, 1.3))
sketch3.addConstraint(Sketcher.Constraint("DistanceY", -1, 1, 0, 2, 120.5))
sketch3.addConstraint(Sketcher.Constraint("DistanceX", 4, 1, 4, 2, 2.475))
sketch3.setExpression("Constraints[17]", "Params.sketch3_width")
sketch3.setExpression("Constraints[18]", "Params.sketch3_height")
sketch3.setExpression("Constraints[20]", "Params.sketch3_width2")
sketch3.setExpression("Constraints[21]", "Params.sketch3_height2")
groove2 = body.newObject("PartDesign::Groove", "Groove001")
groove2.Profile = sketch3
groove2.ReferenceAxis = (sketch3, ["Axis0"])
groove2.setExpression("Angle", "Params.groove2_angle")
doc.recompute()

linearpattern12 = body.newObject("PartDesign::LinearPattern", "LinearPattern011")
linearpattern12.Originals = [groove2]
linearpattern12.Direction = (doc.getObject("X_Axis"), [""])
linearpattern12.Mode = "offset"
linearpattern12.setExpression("Offset", "Params.linearpattern12_pitch")
linearpattern12.Occurrences = 2
body.Tip = linearpattern12
doc.recompute()

datumline10 = body.newObject("PartDesign::Line", "DatumLine009")
datumline10.Placement = App.Placement(App.Vector(0, 0, 0), App.Rotation(App.Vector(0, 0, 1), App.Vector(0.707106781, 0, -0.707106781)))
linearpattern13 = body.newObject("PartDesign::LinearPattern", "LinearPattern012")
linearpattern13.Originals = [groove2]
linearpattern13.Direction = (datumline10, [""])
linearpattern13.Mode = "offset"
linearpattern13.setExpression("Offset", "Params.linearpattern13_pitch")
linearpattern13.Occurrences = 2
body.Tip = linearpattern13
doc.recompute()

linearpattern14 = body.newObject("PartDesign::LinearPattern", "LinearPattern013")
linearpattern14.Originals = [groove2]
linearpattern14.Direction = (doc.getObject("Z_Axis"), [""])
linearpattern14.Mode = "offset"
linearpattern14.setExpression("Offset", "Params.linearpattern14_pitch")
linearpattern14.Occurrences = 2
linearpattern14.Reversed = True
body.Tip = linearpattern14
doc.recompute()

datumline11 = body.newObject("PartDesign::Line", "DatumLine010")
datumline11.Placement = App.Placement(App.Vector(0, 0, 0), App.Rotation(App.Vector(0, 0, 1), App.Vector(-0.177841998, 0, -0.984059055)))
linearpattern15 = body.newObject("PartDesign::LinearPattern", "LinearPattern014")
linearpattern15.Originals = [groove2]
linearpattern15.Direction = (datumline11, [""])
linearpattern15.Mode = "offset"
linearpattern15.setExpression("Offset", "Params.linearpattern15_pitch")
linearpattern15.Occurrences = 2
body.Tip = linearpattern15
doc.recompute()

datumline12 = body.newObject("PartDesign::Line", "DatumLine011")
datumline12.Placement = App.Placement(App.Vector(0, 0, 0), App.Rotation(App.Vector(0, 0, 1), App.Vector(0.680112241, 0, -0.733108)))
linearpattern16 = body.newObject("PartDesign::LinearPattern", "LinearPattern015")
linearpattern16.Originals = [groove2]
linearpattern16.Direction = (datumline12, [""])
linearpattern16.Mode = "offset"
linearpattern16.setExpression("Offset", "Params.linearpattern16_pitch")
linearpattern16.Occurrences = 2
body.Tip = linearpattern16
doc.recompute()

datumline13 = body.newObject("PartDesign::Line", "DatumLine012")
datumline13.Placement = App.Placement(App.Vector(0, 0, 0), App.Rotation(App.Vector(0, 0, 1), App.Vector(0.543251278, 0, -0.839570157)))
linearpattern17 = body.newObject("PartDesign::LinearPattern", "LinearPattern016")
linearpattern17.Originals = [groove2]
linearpattern17.Direction = (datumline13, [""])
linearpattern17.Mode = "offset"
linearpattern17.setExpression("Offset", "Params.linearpattern17_pitch")
linearpattern17.Occurrences = 2
body.Tip = linearpattern17
doc.recompute()

datumline14 = body.newObject("PartDesign::Line", "DatumLine013")
datumline14.Placement = App.Placement(App.Vector(0, 0, 0), App.Rotation(App.Vector(0, 0, 1), App.Vector(-0.125060808, 0, -0.992149079)))
linearpattern18 = body.newObject("PartDesign::LinearPattern", "LinearPattern017")
linearpattern18.Originals = [groove2]
linearpattern18.Direction = (datumline14, [""])
linearpattern18.Mode = "offset"
linearpattern18.setExpression("Offset", "Params.linearpattern18_pitch")
linearpattern18.Occurrences = 2
body.Tip = linearpattern18
doc.recompute()

datumline15 = body.newObject("PartDesign::Line", "DatumLine014")
datumline15.Placement = App.Placement(App.Vector(0, 0, 0), App.Rotation(App.Vector(0, 0, 1), App.Vector(0.152426658, 0, -0.988314785)))
linearpattern19 = body.newObject("PartDesign::LinearPattern", "LinearPattern018")
linearpattern19.Originals = [groove2]
linearpattern19.Direction = (datumline15, [""])
linearpattern19.Mode = "offset"
linearpattern19.setExpression("Offset", "Params.linearpattern19_pitch")
linearpattern19.Occurrences = 2
body.Tip = linearpattern19
doc.recompute()

datumline16 = body.newObject("PartDesign::Line", "DatumLine015")
datumline16.Placement = App.Placement(App.Vector(0, 0, 0), App.Rotation(App.Vector(0, 0, 1), App.Vector(0.138911532, 0, -0.990304795)))
linearpattern20 = body.newObject("PartDesign::LinearPattern", "LinearPattern019")
linearpattern20.Originals = [groove2]
linearpattern20.Direction = (datumline16, [""])
linearpattern20.Mode = "offset"
linearpattern20.setExpression("Offset", "Params.linearpattern20_pitch")
linearpattern20.Occurrences = 2
body.Tip = linearpattern20

# Sketch on XZ plane
sketch4 = body.newObject("Sketcher::SketchObject", "Sketch003")
sketch4.AttachmentSupport = (doc.getObject("XZ_Plane"), [""])
sketch4.MapMode = "FlatFace"
sketch4.addGeometry(Part.LineSegment(App.Vector(-8.25, 81, 0), App.Vector(-8.25, 0, 0)), False)
sketch4.addGeometry(Part.LineSegment(App.Vector(-8.25, 0, 0), App.Vector(-31, 0, 0)), False)
sketch4.addGeometry(Part.LineSegment(App.Vector(-31, 0, 0), App.Vector(-31, 84, 0)), False)
sketch4.addGeometry(Part.LineSegment(App.Vector(-31, 84, 0), App.Vector(-11.25, 84, 0)), False)
sketch4.addGeometry(Part.ArcOfCircle(Part.Circle(App.Vector(-11.25, 81, 0), App.Vector(0, 0, 1), 3), math.radians(0), math.radians(90)), False)
sketch4.addGeometry(Part.LineSegment(App.Vector(31, 0, 0), App.Vector(8.25, 0, 0)), False)
sketch4.addGeometry(Part.LineSegment(App.Vector(8.25, 0, 0), App.Vector(8.25, 81, 0)), False)
sketch4.addGeometry(Part.ArcOfCircle(Part.Circle(App.Vector(11.25, 81, 0), App.Vector(0, 0, 1), 3), math.radians(90), math.radians(180)), False)
sketch4.addGeometry(Part.LineSegment(App.Vector(11.25, 84, 0), App.Vector(31, 84, 0)), False)
sketch4.addGeometry(Part.LineSegment(App.Vector(31, 84, 0), App.Vector(31, 0, 0)), False)
sketch4.addConstraint(Sketcher.Constraint("Coincident", 0, 2, 1, 1))
sketch4.addConstraint(Sketcher.Constraint("Coincident", 1, 2, 2, 1))
sketch4.addConstraint(Sketcher.Constraint("Coincident", 2, 2, 3, 1))
sketch4.addConstraint(Sketcher.Constraint("Tangent", 3, 2, 4, 2))
sketch4.addConstraint(Sketcher.Constraint("Tangent", 4, 1, 0, 1))
sketch4.addConstraint(Sketcher.Constraint("Coincident", 5, 2, 6, 1))
sketch4.addConstraint(Sketcher.Constraint("Tangent", 6, 2, 7, 2))
sketch4.addConstraint(Sketcher.Constraint("Tangent", 7, 1, 8, 1))
sketch4.addConstraint(Sketcher.Constraint("Coincident", 8, 2, 9, 1))
sketch4.addConstraint(Sketcher.Constraint("Coincident", 9, 2, 5, 1))
sketch4.addConstraint(Sketcher.Constraint("Vertical", 0))
sketch4.addConstraint(Sketcher.Constraint("Horizontal", 1))
sketch4.addConstraint(Sketcher.Constraint("Vertical", 2))
sketch4.addConstraint(Sketcher.Constraint("Horizontal", 3))
sketch4.addConstraint(Sketcher.Constraint("Horizontal", 5))
sketch4.addConstraint(Sketcher.Constraint("Vertical", 6))
sketch4.addConstraint(Sketcher.Constraint("Horizontal", 8))
sketch4.addConstraint(Sketcher.Constraint("Vertical", 9))
sketch4.addConstraint(Sketcher.Constraint("Equal", 4, 7))
sketch4.addConstraint(Sketcher.Constraint("Symmetric", 0, 2, 5, 2, -1, 1))
sketch4.addConstraint(Sketcher.Constraint("Symmetric", 2, 2, 8, 2, -2))
sketch4.addConstraint(Sketcher.Constraint("PointOnObject", 0, 2, -1))
sketch4.addConstraint(Sketcher.Constraint("Radius", 4, 3.0))
sketch4.addConstraint(Sketcher.Constraint("DistanceY", 0, 2, 0, 1, 81.0))
sketch4.addConstraint(Sketcher.Constraint("DistanceX", 1, 2, -1, 1, 31.0))
sketch4.addConstraint(Sketcher.Constraint("DistanceX", 1, 2, 1, 1, 22.75))
sketch4.setExpression("Constraints[22]", "Params.sketch4_radius")
sketch4.setExpression("Constraints[23]", "Params.sketch4_height")
sketch4.setExpression("Constraints[25]", "Params.sketch4_width")
pocket1 = body.newObject("PartDesign::Pocket", "Pocket")
pocket1.Profile = sketch4
pocket1.setExpression("Length", "Params.pocket1_length")

doc.recompute()
